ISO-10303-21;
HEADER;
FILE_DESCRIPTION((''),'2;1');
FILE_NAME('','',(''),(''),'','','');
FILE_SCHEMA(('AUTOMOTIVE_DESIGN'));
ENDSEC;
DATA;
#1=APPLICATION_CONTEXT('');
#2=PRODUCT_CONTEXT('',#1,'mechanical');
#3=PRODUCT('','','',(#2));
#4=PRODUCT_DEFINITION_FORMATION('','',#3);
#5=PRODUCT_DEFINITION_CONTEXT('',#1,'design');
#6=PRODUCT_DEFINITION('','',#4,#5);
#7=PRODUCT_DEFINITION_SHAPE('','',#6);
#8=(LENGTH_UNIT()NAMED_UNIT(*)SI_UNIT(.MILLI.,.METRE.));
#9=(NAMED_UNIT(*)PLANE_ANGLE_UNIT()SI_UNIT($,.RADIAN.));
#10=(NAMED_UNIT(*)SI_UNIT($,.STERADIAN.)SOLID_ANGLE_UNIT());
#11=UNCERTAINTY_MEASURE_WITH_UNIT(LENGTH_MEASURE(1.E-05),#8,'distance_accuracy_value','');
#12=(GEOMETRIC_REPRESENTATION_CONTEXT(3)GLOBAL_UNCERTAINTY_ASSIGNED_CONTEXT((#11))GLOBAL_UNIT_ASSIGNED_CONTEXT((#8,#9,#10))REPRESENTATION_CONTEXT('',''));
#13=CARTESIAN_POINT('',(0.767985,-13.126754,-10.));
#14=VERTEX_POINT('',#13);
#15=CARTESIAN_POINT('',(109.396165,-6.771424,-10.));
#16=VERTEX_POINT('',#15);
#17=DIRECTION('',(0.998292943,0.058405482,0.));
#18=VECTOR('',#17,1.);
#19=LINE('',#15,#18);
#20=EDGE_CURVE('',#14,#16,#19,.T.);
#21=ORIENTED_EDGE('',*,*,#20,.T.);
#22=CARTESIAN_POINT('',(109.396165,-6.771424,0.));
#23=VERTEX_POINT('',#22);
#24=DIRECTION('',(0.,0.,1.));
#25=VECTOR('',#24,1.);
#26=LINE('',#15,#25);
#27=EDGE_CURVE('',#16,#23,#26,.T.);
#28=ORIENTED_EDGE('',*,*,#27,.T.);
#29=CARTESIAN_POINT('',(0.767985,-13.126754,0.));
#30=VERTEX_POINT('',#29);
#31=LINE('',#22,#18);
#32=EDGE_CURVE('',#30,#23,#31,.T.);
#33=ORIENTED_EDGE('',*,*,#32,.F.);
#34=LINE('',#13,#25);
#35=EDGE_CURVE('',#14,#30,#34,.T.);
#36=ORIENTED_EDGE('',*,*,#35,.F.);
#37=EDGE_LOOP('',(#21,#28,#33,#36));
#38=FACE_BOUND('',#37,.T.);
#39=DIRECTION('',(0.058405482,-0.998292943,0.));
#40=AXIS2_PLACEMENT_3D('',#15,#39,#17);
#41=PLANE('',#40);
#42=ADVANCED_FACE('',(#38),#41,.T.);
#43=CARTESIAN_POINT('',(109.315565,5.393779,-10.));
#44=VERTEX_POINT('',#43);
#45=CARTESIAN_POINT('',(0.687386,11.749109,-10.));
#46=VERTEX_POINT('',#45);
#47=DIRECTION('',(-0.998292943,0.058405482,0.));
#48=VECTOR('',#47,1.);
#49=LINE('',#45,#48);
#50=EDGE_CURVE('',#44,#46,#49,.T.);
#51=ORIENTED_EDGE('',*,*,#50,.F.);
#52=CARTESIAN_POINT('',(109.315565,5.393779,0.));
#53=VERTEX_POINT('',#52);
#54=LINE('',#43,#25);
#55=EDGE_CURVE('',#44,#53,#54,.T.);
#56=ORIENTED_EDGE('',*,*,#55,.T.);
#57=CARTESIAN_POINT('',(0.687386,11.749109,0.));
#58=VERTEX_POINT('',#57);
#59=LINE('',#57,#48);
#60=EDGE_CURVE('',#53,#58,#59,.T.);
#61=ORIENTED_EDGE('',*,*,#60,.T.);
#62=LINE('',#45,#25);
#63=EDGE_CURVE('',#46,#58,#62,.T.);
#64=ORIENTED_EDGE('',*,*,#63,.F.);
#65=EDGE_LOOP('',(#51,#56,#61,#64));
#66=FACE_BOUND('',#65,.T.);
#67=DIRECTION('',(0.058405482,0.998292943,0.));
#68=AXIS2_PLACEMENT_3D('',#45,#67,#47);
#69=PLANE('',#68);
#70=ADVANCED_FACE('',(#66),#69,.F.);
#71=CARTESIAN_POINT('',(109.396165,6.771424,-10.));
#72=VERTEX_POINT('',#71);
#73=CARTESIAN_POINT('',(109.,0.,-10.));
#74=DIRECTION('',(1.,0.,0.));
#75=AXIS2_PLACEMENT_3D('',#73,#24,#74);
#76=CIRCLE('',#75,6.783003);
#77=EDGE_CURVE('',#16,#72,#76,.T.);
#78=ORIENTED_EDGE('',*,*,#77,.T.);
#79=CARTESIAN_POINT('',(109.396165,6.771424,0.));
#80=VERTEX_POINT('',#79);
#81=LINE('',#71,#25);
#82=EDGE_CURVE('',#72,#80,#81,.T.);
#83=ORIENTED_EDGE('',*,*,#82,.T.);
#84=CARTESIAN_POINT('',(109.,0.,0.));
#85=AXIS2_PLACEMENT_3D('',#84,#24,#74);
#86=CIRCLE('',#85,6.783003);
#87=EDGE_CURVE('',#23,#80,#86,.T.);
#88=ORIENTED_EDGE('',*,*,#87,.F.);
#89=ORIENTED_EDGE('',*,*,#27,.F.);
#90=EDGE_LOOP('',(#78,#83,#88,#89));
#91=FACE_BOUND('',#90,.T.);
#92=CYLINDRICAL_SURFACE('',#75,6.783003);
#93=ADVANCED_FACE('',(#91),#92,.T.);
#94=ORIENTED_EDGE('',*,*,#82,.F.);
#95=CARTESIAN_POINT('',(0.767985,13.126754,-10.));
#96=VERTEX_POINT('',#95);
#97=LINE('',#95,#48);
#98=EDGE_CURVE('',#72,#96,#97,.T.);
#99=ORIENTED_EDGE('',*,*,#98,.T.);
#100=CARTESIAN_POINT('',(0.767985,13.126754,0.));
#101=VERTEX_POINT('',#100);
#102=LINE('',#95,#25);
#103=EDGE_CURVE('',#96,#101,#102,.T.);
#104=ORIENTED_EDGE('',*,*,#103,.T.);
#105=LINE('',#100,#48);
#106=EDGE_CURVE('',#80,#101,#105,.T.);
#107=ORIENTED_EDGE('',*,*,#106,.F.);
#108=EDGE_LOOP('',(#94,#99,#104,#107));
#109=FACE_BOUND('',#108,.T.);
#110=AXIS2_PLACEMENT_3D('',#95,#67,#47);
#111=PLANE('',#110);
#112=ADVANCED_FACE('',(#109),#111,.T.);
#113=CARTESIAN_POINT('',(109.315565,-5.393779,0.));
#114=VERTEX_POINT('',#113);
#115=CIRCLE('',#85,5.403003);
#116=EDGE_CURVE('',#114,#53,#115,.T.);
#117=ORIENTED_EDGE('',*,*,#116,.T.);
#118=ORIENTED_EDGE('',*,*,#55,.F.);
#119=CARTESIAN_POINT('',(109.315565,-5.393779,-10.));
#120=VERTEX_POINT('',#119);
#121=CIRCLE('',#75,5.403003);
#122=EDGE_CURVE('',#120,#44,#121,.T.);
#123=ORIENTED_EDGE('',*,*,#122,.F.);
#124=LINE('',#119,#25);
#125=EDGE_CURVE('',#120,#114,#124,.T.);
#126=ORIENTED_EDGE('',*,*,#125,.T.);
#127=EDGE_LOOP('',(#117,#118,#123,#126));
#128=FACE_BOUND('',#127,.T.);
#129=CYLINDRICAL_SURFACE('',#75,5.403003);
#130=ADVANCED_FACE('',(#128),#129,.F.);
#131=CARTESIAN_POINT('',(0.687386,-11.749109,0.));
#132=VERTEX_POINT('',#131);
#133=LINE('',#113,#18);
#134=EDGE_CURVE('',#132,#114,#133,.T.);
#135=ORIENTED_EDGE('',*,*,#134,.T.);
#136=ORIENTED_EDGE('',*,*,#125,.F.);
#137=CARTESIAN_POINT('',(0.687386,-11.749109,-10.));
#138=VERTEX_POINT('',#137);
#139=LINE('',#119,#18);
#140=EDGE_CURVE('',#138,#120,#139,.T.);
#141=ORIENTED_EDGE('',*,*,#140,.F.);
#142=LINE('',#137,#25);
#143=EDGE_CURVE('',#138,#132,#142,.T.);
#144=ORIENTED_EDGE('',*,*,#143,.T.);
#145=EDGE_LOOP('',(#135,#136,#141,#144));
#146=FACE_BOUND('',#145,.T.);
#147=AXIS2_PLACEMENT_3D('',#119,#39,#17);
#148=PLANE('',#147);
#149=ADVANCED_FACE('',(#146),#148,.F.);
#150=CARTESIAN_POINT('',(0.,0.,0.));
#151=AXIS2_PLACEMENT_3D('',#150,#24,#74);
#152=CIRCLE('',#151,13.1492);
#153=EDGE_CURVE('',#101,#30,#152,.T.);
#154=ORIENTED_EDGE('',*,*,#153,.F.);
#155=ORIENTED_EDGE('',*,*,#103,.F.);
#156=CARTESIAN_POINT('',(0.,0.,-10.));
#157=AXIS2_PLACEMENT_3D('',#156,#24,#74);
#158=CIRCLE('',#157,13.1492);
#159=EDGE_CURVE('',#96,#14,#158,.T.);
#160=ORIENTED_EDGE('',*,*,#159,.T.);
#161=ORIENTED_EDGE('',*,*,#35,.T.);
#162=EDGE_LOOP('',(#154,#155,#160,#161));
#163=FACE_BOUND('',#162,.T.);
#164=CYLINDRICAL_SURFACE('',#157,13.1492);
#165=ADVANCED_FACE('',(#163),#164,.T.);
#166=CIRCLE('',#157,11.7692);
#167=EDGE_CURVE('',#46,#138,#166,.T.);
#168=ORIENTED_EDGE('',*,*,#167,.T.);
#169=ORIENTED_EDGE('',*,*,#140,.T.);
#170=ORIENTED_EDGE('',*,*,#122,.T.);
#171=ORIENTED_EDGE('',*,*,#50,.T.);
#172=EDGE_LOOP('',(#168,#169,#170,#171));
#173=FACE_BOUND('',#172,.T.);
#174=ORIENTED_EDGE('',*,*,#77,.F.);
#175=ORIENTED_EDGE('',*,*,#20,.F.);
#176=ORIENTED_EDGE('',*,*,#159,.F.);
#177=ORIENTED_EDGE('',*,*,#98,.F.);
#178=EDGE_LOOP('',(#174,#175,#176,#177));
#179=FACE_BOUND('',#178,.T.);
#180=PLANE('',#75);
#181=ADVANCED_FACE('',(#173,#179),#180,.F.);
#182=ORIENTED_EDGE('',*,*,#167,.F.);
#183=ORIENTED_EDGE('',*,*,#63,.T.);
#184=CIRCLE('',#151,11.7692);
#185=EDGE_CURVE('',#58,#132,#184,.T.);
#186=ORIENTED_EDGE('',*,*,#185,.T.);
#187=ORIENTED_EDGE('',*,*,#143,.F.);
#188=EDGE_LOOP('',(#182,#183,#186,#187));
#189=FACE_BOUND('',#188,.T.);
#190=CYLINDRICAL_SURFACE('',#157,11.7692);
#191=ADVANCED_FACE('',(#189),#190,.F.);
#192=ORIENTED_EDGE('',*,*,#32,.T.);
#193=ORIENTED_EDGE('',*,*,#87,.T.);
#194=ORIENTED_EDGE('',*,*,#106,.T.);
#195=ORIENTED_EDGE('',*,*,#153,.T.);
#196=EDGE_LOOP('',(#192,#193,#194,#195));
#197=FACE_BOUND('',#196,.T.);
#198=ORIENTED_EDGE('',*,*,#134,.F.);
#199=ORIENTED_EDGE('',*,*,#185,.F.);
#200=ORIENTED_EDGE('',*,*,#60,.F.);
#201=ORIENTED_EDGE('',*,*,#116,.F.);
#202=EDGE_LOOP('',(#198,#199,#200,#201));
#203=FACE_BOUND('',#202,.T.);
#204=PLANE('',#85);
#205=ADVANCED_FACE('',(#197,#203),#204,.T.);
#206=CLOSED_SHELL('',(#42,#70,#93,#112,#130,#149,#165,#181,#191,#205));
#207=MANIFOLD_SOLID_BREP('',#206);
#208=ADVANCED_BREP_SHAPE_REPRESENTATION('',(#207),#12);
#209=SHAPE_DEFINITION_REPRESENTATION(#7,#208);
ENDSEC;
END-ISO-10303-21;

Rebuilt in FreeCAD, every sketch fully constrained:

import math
import FreeCAD as App
import Part
import Sketcher

V = App.Vector

doc = App.newDocument("Part")
body = doc.addObject("PartDesign::Body", "Body")

# Sketch on XY plane
sketch1 = body.newObject("Sketcher::SketchObject", "Sketch")
sketch1.AttachmentSupport = (doc.getObject("XY_Plane"), [""])
sketch1.MapMode = "FlatFace"
sketch1.addGeometry([
    Part.LineSegment(V(109, 7, 0), V(1, 13, 0)),  # 0
    Part.ArcOfCircle(Part.Circle(V(0, 0, 0), V(0, 0, 1), 13), math.radians(87), math.radians(273)),  # 1
    Part.LineSegment(V(1, -13, 0), V(109, -7, 0)),  # 2
    Part.ArcOfCircle(Part.Circle(V(109, 0, 0), V(0, 0, 1), 7), math.radians(-87), math.radians(87)),  # 3
    Part.LineSegment(V(109, -5, 0), V(1, -12, 0)),  # 4
    Part.ArcOfCircle(Part.Circle(V(0, 0, 0), V(0, 0, 1), 12), math.radians(87), math.radians(273)),  # 5
    Part.LineSegment(V(1, 12, 0), V(109, 5, 0)),  # 6
    Part.ArcOfCircle(Part.Circle(V(109, 0, 0), V(0, 0, 1), 5), math.radians(-87), math.radians(87)),  # 7
], False)
sketch1.addConstraint([
    Sketcher.Constraint("Tangent", 0, 2, 1, 1),
    Sketcher.Constraint("Tangent", 1, 2, 2, 1),
    Sketcher.Constraint("Tangent", 2, 2, 3, 1),
    Sketcher.Constraint("Tangent", 3, 2, 0, 1),
    Sketcher.Constraint("Tangent", 4, 2, 5, 2),
    Sketcher.Constraint("Tangent", 5, 1, 6, 1),
    Sketcher.Constraint("Tangent", 6, 2, 7, 2),
    Sketcher.Constraint("Tangent", 7, 1, 4, 1),
    Sketcher.Constraint("Coincident", 1, 3, -1, 1),
    Sketcher.Constraint("Coincident", 5, 3, -1, 1),
    Sketcher.Constraint("Coincident", 7, 3, 3, 3),
    Sketcher.Constraint("PointOnObject", 3, 3, -1),
    Sketcher.Constraint("Parallel", 2, 4),
    Sketcher.Constraint("DistanceX", -1, 1, 3, 3, 109.0),
    Sketcher.Constraint("Radius", 1, 13.1492),
    Sketcher.Constraint("Radius", 5, 11.7692),
    Sketcher.Constraint("Radius", 3, 6.783003),
])
pad1 = body.newObject("PartDesign::Pad", "Pad")
pad1.Profile = sketch1
pad1.Length = 10
pad1.Reversed = True

doc.recompute()
